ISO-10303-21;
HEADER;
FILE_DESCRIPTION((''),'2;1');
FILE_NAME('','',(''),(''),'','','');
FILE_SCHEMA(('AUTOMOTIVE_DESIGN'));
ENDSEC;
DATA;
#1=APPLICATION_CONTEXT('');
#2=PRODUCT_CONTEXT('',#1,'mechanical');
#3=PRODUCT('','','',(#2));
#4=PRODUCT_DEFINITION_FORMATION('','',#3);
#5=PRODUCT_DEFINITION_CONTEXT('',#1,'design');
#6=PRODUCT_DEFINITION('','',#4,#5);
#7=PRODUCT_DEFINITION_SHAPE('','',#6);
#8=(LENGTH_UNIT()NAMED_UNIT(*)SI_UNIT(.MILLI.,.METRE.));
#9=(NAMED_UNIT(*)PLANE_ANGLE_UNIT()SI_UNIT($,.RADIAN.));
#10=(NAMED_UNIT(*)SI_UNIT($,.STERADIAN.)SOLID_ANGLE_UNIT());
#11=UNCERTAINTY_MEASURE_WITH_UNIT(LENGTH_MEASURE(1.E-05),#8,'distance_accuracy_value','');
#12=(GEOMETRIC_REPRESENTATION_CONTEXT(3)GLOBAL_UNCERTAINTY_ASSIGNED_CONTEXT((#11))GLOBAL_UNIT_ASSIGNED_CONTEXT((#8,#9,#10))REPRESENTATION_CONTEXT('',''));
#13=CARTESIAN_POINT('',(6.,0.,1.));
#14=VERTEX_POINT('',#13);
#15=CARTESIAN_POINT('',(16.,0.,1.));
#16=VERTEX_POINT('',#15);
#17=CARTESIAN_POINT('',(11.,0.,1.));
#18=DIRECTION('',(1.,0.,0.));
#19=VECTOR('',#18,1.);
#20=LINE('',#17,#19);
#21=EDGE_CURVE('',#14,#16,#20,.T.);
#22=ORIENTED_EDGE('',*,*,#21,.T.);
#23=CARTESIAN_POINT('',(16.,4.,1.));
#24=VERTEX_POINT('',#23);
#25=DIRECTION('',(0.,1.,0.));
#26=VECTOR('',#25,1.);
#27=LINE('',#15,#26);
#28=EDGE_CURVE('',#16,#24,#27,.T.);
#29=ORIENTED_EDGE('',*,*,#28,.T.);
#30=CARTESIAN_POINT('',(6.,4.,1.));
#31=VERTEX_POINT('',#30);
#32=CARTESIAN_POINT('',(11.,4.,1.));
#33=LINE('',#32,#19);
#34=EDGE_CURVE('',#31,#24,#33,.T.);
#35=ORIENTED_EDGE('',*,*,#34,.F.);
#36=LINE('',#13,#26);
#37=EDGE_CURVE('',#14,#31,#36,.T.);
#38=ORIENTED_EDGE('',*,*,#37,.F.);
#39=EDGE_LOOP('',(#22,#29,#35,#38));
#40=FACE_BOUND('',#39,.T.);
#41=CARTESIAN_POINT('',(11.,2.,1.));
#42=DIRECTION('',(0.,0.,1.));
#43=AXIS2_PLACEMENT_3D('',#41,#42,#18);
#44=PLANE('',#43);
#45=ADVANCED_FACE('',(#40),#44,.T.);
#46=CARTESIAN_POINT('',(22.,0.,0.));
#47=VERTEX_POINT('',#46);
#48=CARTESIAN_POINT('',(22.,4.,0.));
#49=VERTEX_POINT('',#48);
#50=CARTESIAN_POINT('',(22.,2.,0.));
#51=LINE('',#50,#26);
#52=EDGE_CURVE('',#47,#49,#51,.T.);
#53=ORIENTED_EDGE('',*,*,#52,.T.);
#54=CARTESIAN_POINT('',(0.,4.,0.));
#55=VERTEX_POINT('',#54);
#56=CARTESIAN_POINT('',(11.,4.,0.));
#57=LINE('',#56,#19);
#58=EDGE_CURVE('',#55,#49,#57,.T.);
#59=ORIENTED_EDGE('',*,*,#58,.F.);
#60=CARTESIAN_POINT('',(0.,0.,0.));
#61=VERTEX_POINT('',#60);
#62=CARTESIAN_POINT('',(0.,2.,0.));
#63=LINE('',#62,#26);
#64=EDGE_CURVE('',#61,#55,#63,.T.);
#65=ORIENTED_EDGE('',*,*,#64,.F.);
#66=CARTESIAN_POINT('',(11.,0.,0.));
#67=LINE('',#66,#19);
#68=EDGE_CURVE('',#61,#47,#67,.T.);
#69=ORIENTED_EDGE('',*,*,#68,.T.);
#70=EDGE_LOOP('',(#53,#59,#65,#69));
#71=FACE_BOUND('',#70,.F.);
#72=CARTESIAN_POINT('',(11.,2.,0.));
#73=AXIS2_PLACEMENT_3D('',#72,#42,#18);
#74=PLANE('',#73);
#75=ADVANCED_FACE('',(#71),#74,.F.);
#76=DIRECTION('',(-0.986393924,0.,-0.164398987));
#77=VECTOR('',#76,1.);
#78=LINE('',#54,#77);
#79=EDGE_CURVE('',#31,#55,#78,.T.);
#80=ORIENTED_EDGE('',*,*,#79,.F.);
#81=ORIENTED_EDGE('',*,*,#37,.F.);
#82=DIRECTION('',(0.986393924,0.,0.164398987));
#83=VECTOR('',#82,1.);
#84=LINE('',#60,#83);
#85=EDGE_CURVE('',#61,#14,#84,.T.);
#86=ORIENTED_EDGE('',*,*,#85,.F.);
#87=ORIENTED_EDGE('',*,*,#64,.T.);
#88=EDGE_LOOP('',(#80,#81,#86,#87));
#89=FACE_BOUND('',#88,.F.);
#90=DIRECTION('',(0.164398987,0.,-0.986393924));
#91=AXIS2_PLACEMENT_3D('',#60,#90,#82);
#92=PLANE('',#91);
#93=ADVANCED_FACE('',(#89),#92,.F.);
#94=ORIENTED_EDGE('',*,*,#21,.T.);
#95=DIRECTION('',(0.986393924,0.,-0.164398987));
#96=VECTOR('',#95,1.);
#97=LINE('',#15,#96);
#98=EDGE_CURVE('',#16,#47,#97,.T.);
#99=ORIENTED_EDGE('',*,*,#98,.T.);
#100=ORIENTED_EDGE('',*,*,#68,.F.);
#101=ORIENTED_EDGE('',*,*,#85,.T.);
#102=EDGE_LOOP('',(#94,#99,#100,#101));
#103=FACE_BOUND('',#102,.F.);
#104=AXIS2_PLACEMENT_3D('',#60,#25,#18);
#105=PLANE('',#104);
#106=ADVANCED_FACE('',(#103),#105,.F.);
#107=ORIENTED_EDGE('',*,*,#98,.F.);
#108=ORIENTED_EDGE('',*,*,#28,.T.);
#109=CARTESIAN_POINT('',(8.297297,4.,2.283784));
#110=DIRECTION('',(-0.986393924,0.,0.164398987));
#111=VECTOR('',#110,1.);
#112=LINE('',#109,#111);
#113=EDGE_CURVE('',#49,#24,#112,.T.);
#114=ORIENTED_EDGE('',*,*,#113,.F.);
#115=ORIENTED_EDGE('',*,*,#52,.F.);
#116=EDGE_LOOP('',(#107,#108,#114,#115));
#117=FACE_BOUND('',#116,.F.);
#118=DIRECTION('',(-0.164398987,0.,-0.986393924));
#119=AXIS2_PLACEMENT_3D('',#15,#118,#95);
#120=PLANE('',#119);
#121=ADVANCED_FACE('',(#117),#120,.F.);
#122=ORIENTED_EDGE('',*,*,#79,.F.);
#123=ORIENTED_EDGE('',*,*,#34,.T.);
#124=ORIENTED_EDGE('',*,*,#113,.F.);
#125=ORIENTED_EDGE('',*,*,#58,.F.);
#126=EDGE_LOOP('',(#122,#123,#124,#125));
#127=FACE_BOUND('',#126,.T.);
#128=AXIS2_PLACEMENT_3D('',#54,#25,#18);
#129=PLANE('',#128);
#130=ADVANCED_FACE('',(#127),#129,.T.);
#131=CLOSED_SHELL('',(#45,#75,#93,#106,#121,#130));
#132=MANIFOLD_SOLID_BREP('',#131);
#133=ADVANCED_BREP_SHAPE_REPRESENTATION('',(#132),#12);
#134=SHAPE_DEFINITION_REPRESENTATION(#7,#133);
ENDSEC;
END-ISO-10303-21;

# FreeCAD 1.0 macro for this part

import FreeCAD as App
import Part
import Sketcher
Q = App.Units.Quantity


def add_polygon(sketch, points):
    """Adds a closed chain of lines whose ends are joined by coincident constraints."""
    first, n = sketch.GeometryCount, len(points)
    for a, b in zip(points, points[1:] + points[:1]):
        sketch.addGeometry(Part.LineSegment(App.Vector(*a, 0), App.Vector(*b, 0)), False)
    for i in range(n):
        sketch.addConstraint(Sketcher.Constraint("Coincident", first + i, 2, first + (i + 1) % n, 1))

doc = App.newDocument("Part")
params = doc.addObject("Spreadsheet::Sheet", "Params")
for row, (alias, value) in enumerate([
    ("sketch1_width", "22 mm"),
    ("sketch1_height", "4 mm"),
    ("pad1_length", "1 mm"),
    ("sketch2_width", "6 mm"),
    ("sketch2_height", "1 mm"),
    ("pocket1_length", "25 mm"),
], start=1):
    params.set(f"A{row}", alias)
    params.set(f"B{row}", "=" + value)
    params.setAlias(f"B{row}", alias)

body = doc.addObject("PartDesign::Body", "Body")

# Sketch on XY plane
sketch1 = doc.addObject("Sketcher::SketchObject", "Sketch")
body.addObject(sketch1)
sketch1.AttachmentSupport = (doc.XY_Plane, [""])
sketch1.MapMode = "FlatFace"
add_polygon(sketch1, [(0, 4), (0, 0), (22, 0), (22, 4)])  # lines 0-3
sketch1.addConstraint(Sketcher.Constraint("Vertical", 0))
sketch1.addConstraint(Sketcher.Constraint("Horizontal", 1))
sketch1.addConstraint(Sketcher.Constraint("Vertical", 2))
sketch1.addConstraint(Sketcher.Constraint("Horizontal", 3))
sketch1.addConstraint(Sketcher.Constraint("Coincident", 0, 2, -1, 1))
sketch1.addConstraint(Sketcher.Constraint("DistanceX", 1, 1, 1, 2, Q("22 mm")))
sketch1.addConstraint(Sketcher.Constraint("DistanceY", 0, 2, 0, 1, Q("4 mm")))
sketch1.setExpression("Constraints[9]", "Params.sketch1_width")
sketch1.setExpression("Constraints[10]", "Params.sketch1_height")
pad1 = doc.addObject("PartDesign::Pad", "Pad")
body.addObject(pad1)
pad1.Profile = sketch1
pad1.setExpression("Length", "Params.pad1_length")

# Sketch on XZ plane
sketch2 = doc.addObject("Sketcher::SketchObject", "Sketch001")
body.addObject(sketch2)
sketch2.AttachmentSupport = (doc.XZ_Plane, [""])
sketch2.MapMode = "FlatFace"
add_polygon(sketch2, [(0, 1), (0, 0), (6, 1)])  # lines 0-2
add_polygon(sketch2, [(16, 1), (22, 0), (22, 1)])  # lines 3-5
sketch2.addConstraint(Sketcher.Constraint("Vertical", 0))
sketch2.addConstraint(Sketcher.Constraint("Horizontal", 2))
sketch2.addConstraint(Sketcher.Constraint("Vertical", 4))
sketch2.addConstraint(Sketcher.Constraint("Horizontal", 5))
sketch2.addConstraint(Sketcher.Constraint("Coincident", 0, 2, -1, 1))
sketch2.addConstraint(Sketcher.Constraint("PointOnObject", 3, 2, -1))
sketch2.addConstraint(Sketcher.Constraint("Horizontal", 2, 2, 4, 2))
sketch2.addConstraint(Sketcher.Constraint("Equal", 2, 5))
sketch2.addConstraint(Sketcher.Constraint("DistanceX", 2, 2, 2, 1, Q("6 mm")))
sketch2.addConstraint(Sketcher.Constraint("DistanceY", 0, 2, 0, 1, Q("1 mm")))
sketch2.addConstraint(Sketcher.Constraint("DistanceX", -1, 1, 3, 2, Q("22 mm")))
sketch2.setExpression("Constraints[14]", "Params.sketch2_width")
sketch2.setExpression("Constraints[15]", "Params.sketch2_height")
pocket1 = doc.addObject("PartDesign::Pocket", "Pocket")
body.addObject(pocket1)
pocket1.Profile = sketch2
pocket1.setExpression("Length", "Params.pocket1_length")

doc.recompute()
